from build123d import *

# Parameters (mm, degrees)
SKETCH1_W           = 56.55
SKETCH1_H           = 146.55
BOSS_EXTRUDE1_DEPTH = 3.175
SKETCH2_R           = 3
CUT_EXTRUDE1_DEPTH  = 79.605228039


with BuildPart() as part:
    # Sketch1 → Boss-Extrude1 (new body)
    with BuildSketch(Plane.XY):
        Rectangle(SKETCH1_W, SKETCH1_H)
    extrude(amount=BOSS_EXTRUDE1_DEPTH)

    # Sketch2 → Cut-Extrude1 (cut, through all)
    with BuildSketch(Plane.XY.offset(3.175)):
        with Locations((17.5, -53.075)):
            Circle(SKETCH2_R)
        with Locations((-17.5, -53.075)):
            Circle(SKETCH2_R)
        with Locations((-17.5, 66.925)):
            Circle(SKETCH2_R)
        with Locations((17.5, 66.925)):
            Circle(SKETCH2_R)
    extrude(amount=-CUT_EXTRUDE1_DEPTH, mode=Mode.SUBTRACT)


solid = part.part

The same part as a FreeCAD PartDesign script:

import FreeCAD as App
import Part
import Sketcher
Q = App.Units.Quantity


def add_polygon(sketch, points):
    """Adds a closed chain of lines whose ends are joined by coincident constraints."""
    first, n = sketch.GeometryCount, len(points)
    for a, b in zip(points, points[1:] + points[:1]):
        sketch.addGeometry(Part.LineSegment(App.Vector(*a, 0), App.Vector(*b, 0)), False)
    for i in range(n):
        sketch.addConstraint(Sketcher.Constraint("Coincident", first + i, 2, first + (i + 1) % n, 1))

doc = App.newDocument("Part")
params = doc.addObject("Spreadsheet::Sheet", "Params")
for row, (alias, value) in enumerate([
    ("sketch1_width", "56.55 mm"),
    ("sketch1_height", "146.55 mm"),
    ("pad1_length", "3.175 mm"),
    ("sketch2_diameter", "6 mm"),
], start=1):
    params.set(f"A{row}", alias)
    params.set(f"B{row}", "=" + value)
    params.setAlias(f"B{row}", alias)

body = doc.addObject("PartDesign::Body", "Body")

# Sketch on XY plane
sketch1 = body.newObject("Sketcher::SketchObject", "Sketch")
sketch1.AttachmentSupport = (doc.getObject("XY_Plane"), [""])
sketch1.MapMode = "FlatFace"
add_polygon(sketch1, [(-28.275, 73.275), (-28.275, -73.275), (28.275, -73.275), (28.275, 73.275)])  # lines 0-3
sketch1.addConstraint([
    Sketcher.Constraint("Vertical", 0),
    Sketcher.Constraint("Horizontal", 1),
    Sketcher.Constraint("Vertical", 2),
    Sketcher.Constraint("Horizontal", 3),
    Sketcher.Constraint("Symmetric", 0, 2, 2, 2, -1, 1),
    Sketcher.Constraint("DistanceX", 1, 1, 1, 2, Q("56.55 mm")),
    Sketcher.Constraint("DistanceY", 0, 2, 0, 1, Q("146.55 mm")),
])
sketch1.setExpression("Constraints[9]", "Params.sketch1_width")
sketch1.setExpression("Constraints[10]", "Params.sketch1_height")
pad1 = body.newObject("PartDesign::Pad", "Pad")
pad1.Profile = sketch1
pad1.setExpression("Length", "Params.pad1_length")

# Sketch on XY plane
sketch2 = body.newObject("Sketcher::SketchObject", "Sketch001")
sketch2.AttachmentSupport = (doc.getObject("XY_Plane"), [""])
sketch2.MapMode = "FlatFace"
sketch2.AttachmentOffset = App.Placement(App.Vector(0, 0, 3.175), App.Rotation())
sketch2.addGeometry([
    Part.Circle(App.Vector(17.5, -53.075, 0), App.Vector(0, 0, 1), 3),
    Part.Circle(App.Vector(-17.5, -53.075, 0), App.Vector(0, 0, 1), 3),
    Part.Circle(App.Vector(-17.5, 66.925, 0), App.Vector(0, 0, 1), 3),
    Part.Circle(App.Vector(17.5, 66.925, 0), App.Vector(0, 0, 1), 3),
], False)
sketch2.addConstraint([
    Sketcher.Constraint("Equal", 0, 1),
    Sketcher.Constraint("Equal", 1, 2),
    Sketcher.Constraint("Equal", 2, 3),
    Sketcher.Constraint("Symmetric", 0, 3, 1, 3, -2),
    Sketcher.Constraint("Symmetric", 2, 3, 3, 3, -2),
    Sketcher.Constraint("Vertical", 1, 3, 2, 3),
    Sketcher.Constraint("Diameter", 0, Q("6 mm")),
    Sketcher.Constraint("DistanceX", 1, 3, 0, 3, Q("35 mm")),
    Sketcher.Constraint("DistanceY", 1, 3, 2, 3, Q("120 mm")),
    Sketcher.Constraint("DistanceY", 0, 3, -1, 1, Q("53.075 mm")),
])
sketch2.setExpression("Constraints[6]", "Params.sketch2_diameter")
pocket1 = body.newObject("PartDesign::Pocket", "Pocket")
pocket1.Profile = sketch2
pocket1.Type = "ThroughAll"

doc.recompute()
